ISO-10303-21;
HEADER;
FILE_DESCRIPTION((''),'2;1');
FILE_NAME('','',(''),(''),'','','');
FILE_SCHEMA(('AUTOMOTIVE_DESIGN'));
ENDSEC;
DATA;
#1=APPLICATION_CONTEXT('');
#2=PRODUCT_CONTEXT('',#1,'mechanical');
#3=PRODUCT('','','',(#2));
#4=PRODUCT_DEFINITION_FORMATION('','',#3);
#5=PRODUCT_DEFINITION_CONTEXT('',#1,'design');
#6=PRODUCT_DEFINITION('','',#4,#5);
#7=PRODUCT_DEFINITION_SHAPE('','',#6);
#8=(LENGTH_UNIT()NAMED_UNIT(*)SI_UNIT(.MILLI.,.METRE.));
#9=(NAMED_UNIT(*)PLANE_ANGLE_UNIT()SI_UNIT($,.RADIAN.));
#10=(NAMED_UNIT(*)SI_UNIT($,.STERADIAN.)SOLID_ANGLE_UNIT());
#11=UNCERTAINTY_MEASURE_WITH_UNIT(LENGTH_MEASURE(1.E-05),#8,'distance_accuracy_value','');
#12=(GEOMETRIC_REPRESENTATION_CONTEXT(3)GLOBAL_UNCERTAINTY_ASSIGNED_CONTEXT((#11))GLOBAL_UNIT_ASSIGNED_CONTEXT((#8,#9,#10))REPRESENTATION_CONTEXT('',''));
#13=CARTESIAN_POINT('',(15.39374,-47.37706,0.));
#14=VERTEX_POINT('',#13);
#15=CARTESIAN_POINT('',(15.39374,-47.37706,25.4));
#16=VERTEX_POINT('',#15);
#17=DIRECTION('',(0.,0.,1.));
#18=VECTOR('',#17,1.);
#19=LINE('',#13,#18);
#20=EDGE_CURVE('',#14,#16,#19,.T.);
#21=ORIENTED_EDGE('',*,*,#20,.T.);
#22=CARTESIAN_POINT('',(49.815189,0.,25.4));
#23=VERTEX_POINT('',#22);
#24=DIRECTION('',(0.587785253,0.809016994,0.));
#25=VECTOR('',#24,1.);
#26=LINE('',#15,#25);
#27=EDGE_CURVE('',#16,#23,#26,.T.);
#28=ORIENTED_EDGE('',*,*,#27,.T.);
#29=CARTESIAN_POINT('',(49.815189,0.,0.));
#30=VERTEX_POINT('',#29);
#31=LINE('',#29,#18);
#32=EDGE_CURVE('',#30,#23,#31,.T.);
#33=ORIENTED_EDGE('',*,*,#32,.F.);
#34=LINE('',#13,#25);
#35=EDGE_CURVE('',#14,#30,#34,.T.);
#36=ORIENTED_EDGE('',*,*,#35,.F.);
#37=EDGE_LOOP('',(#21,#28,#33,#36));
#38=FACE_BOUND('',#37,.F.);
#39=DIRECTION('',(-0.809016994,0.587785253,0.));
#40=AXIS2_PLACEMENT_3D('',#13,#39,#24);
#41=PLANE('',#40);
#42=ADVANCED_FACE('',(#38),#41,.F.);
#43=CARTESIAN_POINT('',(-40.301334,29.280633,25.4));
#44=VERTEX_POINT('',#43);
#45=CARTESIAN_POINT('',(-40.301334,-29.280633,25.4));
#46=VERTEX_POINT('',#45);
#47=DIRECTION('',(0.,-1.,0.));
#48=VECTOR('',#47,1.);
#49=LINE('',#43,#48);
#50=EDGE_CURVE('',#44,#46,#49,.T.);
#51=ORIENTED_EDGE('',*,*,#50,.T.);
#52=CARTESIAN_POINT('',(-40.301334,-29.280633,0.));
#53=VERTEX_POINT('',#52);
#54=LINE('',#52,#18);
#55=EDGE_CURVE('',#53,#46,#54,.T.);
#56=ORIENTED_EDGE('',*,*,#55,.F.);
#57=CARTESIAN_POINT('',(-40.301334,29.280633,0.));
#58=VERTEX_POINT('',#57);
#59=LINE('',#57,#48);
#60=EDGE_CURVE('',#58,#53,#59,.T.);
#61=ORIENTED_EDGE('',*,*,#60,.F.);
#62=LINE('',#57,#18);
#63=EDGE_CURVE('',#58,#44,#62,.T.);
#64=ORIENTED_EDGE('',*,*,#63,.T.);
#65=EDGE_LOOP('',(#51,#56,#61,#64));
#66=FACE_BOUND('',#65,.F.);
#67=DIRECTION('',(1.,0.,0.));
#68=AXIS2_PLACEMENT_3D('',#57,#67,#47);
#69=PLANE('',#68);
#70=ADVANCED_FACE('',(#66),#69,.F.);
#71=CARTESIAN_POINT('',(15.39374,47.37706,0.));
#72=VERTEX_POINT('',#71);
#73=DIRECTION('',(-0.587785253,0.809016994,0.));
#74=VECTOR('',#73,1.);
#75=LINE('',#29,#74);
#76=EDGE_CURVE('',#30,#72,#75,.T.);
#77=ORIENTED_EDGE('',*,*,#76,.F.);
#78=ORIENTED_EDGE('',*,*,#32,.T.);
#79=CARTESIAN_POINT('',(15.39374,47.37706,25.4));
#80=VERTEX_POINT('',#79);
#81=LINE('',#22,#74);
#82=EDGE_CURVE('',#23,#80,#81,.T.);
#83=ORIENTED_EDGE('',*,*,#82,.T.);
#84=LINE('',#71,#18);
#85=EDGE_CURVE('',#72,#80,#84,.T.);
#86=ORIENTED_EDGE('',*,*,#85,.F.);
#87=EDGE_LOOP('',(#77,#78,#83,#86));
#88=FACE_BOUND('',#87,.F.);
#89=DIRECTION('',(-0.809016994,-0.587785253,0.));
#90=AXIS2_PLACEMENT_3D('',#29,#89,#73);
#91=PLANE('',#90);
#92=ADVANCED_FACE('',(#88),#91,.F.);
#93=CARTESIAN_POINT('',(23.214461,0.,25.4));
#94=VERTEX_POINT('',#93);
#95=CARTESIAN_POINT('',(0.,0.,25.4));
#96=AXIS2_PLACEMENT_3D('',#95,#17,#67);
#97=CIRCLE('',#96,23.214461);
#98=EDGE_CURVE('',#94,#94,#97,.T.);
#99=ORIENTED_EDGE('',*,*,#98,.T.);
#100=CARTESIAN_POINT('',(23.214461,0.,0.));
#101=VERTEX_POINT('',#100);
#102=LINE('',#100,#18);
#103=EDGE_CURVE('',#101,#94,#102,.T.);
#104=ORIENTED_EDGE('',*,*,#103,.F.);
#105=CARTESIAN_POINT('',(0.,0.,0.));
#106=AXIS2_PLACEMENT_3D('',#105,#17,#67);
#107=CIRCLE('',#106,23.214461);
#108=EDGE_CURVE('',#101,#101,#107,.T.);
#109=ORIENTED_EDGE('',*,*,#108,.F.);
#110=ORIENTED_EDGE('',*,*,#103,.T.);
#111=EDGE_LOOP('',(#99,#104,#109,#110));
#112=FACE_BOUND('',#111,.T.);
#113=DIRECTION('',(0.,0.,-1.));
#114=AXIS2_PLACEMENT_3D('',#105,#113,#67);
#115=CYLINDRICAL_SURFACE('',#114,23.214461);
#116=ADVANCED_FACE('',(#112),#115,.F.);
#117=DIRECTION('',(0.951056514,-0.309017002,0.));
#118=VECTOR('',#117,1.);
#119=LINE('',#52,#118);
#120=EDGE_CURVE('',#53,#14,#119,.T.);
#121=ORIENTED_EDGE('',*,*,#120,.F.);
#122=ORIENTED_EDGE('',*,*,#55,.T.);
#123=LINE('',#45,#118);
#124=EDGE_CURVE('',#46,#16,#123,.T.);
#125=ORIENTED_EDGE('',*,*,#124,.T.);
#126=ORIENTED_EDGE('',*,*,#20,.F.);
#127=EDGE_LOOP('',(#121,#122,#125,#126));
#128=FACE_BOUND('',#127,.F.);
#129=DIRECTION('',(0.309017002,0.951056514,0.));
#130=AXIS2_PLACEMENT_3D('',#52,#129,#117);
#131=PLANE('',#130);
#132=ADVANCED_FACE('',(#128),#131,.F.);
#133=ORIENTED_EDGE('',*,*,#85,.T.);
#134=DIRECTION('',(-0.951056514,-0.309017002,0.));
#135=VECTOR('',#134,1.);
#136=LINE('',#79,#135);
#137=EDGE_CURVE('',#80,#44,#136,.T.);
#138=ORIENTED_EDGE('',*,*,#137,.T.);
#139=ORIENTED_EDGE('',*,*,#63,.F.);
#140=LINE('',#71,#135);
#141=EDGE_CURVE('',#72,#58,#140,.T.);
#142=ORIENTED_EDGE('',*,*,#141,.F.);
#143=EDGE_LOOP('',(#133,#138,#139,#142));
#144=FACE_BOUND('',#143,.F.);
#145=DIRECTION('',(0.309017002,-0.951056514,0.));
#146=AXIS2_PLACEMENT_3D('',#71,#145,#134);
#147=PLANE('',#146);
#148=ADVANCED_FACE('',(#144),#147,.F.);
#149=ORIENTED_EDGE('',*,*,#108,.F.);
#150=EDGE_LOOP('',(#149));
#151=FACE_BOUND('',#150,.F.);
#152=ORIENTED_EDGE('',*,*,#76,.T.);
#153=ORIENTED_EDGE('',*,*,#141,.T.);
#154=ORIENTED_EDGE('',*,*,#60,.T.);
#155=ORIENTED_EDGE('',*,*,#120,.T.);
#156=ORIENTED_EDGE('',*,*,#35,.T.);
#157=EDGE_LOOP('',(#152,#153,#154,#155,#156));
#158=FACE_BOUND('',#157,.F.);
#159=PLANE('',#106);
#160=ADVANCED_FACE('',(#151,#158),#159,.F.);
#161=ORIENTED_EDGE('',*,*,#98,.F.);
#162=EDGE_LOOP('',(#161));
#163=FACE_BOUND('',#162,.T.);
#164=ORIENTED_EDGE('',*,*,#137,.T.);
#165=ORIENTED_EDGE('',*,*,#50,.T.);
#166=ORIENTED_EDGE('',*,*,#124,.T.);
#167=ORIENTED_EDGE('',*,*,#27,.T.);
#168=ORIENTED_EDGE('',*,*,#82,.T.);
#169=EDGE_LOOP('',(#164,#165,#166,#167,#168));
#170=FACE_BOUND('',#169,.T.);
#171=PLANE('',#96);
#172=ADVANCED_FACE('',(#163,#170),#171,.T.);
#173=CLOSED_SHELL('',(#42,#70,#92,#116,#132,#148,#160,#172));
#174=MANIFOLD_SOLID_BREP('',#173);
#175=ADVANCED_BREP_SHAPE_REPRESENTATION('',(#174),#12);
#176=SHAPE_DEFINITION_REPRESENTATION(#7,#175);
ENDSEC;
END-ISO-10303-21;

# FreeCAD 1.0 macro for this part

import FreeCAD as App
import Part
import Sketcher

V = App.Vector
Q = App.Units.Quantity

doc = App.newDocument("Part")
body = doc.addObject("PartDesign::Body", "Body")

sketch1 = body.newObject("Sketcher::SketchObject", "Sketch")
sketch1.AttachmentSupport = (doc.getObject("XY_Plane"), [""])
sketch1.MapMode = "FlatFace"
sketch1.addGeometry([
    Part.LineSegment(V(-40.301334, 29.280633, 0), V(-40.301334, -29.280633, 0)),
    Part.LineSegment(V(-40.301334, -29.280633, 0), V(15.39374, -47.37706, 0)),
    Part.LineSegment(V(15.39374, -47.37706, 0), V(49.815189, 0, 0)),
    Part.LineSegment(V(49.815189, 0, 0), V(15.39374, 47.37706, 0)),
    Part.LineSegment(V(15.39374, 47.37706, 0), V(-40.301334, 29.280633, 0)),
    Part.Circle(V(0, 0, 0), V(0, 0, 1), 23.214461),
], False)
sketch1.addConstraint([
    Sketcher.Constraint("Coincident", 0, 2, 1, 1),
    Sketcher.Constraint("Coincident", 1, 2, 2, 1),
    Sketcher.Constraint("Coincident", 2, 2, 3, 1),
    Sketcher.Constraint("Coincident", 3, 2, 4, 1),
    Sketcher.Constraint("Coincident", 4, 2, 0, 1),
    Sketcher.Constraint("Vertical", 0),
    Sketcher.Constraint("Coincident", 5, 3, -1, 1),
    Sketcher.Constraint("Symmetric", 1, 2, 3, 2, -1),
    Sketcher.Constraint("PointOnObject", 2, 2, -1),
    Sketcher.Constraint("Equal", 1, 2),
    Sketcher.Constraint("Equal", 3, 4),
    Sketcher.Constraint("Angle", 1, Q("-18 deg")),
    Sketcher.Constraint("Angle", 2, Q("54 deg")),
    Sketcher.Constraint("Diameter", 5, Q("46.428922 mm")),
    Sketcher.Constraint("DistanceY", 0, 2, 0, 1, Q("58.561266 mm")),
    Sketcher.Constraint("DistanceX", -1, 1, 1, 2, Q("15.39374 mm")),
])
pad1 = body.newObject("PartDesign::Pad", "Pad")
pad1.Profile = sketch1
pad1.Length = Q("1 in")

doc.recompute()
